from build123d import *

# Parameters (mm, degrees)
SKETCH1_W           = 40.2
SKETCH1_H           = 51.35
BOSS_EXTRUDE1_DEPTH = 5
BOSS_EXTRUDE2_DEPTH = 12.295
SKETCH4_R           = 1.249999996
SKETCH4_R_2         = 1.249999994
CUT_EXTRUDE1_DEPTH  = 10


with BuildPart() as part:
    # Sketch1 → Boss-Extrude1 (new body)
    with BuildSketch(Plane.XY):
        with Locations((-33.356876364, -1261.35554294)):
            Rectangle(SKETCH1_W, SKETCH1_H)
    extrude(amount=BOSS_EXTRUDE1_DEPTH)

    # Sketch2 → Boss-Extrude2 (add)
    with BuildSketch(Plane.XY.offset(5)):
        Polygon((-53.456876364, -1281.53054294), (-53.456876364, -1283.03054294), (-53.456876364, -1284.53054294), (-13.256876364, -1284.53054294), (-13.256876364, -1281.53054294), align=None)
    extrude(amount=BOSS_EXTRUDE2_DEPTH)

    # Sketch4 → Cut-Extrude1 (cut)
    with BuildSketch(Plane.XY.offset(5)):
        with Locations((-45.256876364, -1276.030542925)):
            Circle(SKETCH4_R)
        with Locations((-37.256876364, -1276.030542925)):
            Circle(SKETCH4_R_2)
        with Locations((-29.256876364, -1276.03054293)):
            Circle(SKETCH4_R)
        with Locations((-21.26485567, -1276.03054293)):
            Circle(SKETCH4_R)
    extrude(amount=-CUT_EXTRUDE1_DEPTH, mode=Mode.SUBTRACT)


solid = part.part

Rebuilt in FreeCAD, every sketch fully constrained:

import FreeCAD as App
import Part
import Sketcher
from FreeCAD import Vector
Q = App.Units.Quantity


def add_polygon(sketch, points):
    """Adds a closed chain of lines whose ends are joined by coincident constraints."""
    first, n = sketch.GeometryCount, len(points)
    for a, b in zip(points, points[1:] + points[:1]):
        sketch.addGeometry(Part.LineSegment(App.Vector(*a, 0), App.Vector(*b, 0)), False)
    for i in range(n):
        sketch.addConstraint(Sketcher.Constraint("Coincident", first + i, 2, first + (i + 1) % n, 1))

doc = App.newDocument("Part")
body = doc.addObject("PartDesign::Body", "Body")

sketch1 = doc.addObject("Sketcher::SketchObject", "Sketch")
body.addObject(sketch1)
sketch1.AttachmentSupport = (doc.XY_Plane, [""])
sketch1.MapMode = "FlatFace"
add_polygon(sketch1, [(-53, -1236), (-53, -1287), (-13, -1287), (-13, -1236)])
sketch1.addConstraint([
    Sketcher.Constraint("Vertical", 0),
    Sketcher.Constraint("Horizontal", 1),
    Sketcher.Constraint("Vertical", 2),
    Sketcher.Constraint("Horizontal", 3),
    Sketcher.Constraint("DistanceX", 1, 1, 1, 2, Q("40.2 mm")),
    Sketcher.Constraint("DistanceY", 0, 2, 0, 1, Q("51.35 mm")),
    Sketcher.Constraint("DistanceX", 0, 2, -1, 1, Q("53.456876 mm")),
    Sketcher.Constraint("DistanceY", 0, 2, -1, 1, Q("1287.030543 mm")),
])
pad1 = doc.addObject("PartDesign::Pad", "Pad")
body.addObject(pad1)
pad1.Profile = sketch1
pad1.Length = 5

sketch2 = doc.addObject("Sketcher::SketchObject", "Sketch001")
body.addObject(sketch2)
sketch2.AttachmentSupport = (doc.XY_Plane, [""])
sketch2.MapMode = "FlatFace"
sketch2.AttachmentOffset = App.Placement(Vector(0, 0, 5), App.Rotation())
add_polygon(sketch2, [(-53.5, -1281.5), (-53.5, -1284.5), (-13.3, -1284.5), (-13.3, -1281.5)])
sketch2.addConstraint([
    Sketcher.Constraint("Vertical", 0),
    Sketcher.Constraint("Horizontal", 1),
    Sketcher.Constraint("Vertical", 2),
    Sketcher.Constraint("Horizontal", 3),
    Sketcher.Constraint("DistanceY", 0, 2, 0, 1, Q("3 mm")),
    Sketcher.Constraint("DistanceX", 1, 1, 1, 2, Q("40.2 mm")),
    Sketcher.Constraint("DistanceX", 0, 2, -1, 1, Q("53.456876 mm")),
    Sketcher.Constraint("DistanceY", 0, 2, -1, 1, Q("1284.530543 mm")),
])
pad2 = doc.addObject("PartDesign::Pad", "Pad001")
body.addObject(pad2)
pad2.Profile = sketch2
pad2.Length = 12.295

sketch3 = doc.addObject("Sketcher::SketchObject", "Sketch002")
body.addObject(sketch3)
sketch3.AttachmentSupport = (doc.XY_Plane, [""])
sketch3.MapMode = "FlatFace"
sketch3.AttachmentOffset = App.Placement(Vector(0, 0, 5), App.Rotation())
sketch3.addGeometry([
    Part.Circle(Vector(-45.3, -1276, 0), Vector(0, 0, 1), 1.2),
    Part.Circle(Vector(-37.3, -1276, 0), Vector(0, 0, 1), 1.2),
    Part.Circle(Vector(-29.3, -1276, 0), Vector(0, 0, 1), 1.2),
    Part.Circle(Vector(-21.3, -1276, 0), Vector(0, 0, 1), 1.2),
], False)
sketch3.addConstraint([
    Sketcher.Constraint("Equal", 0, 1),
    Sketcher.Constraint("Equal", 1, 2),
    Sketcher.Constraint("Equal", 2, 3),
    Sketcher.Constraint("Horizontal", 0, 3, 1, 3),
    Sketcher.Constraint("Horizontal", 1, 3, 2, 3),
    Sketcher.Constraint("Horizontal", 2, 3, 3, 3),
    Sketcher.Constraint("Diameter", 0, Q("2.5 mm")),
    Sketcher.Constraint("DistanceX", 0, 3, 1, 3, Q("8 mm")),
    Sketcher.Constraint("DistanceX", 1, 3, 2, 3, Q("8 mm")),
    Sketcher.Constraint("DistanceX", 2, 3, 3, 3, Q("7.992021 mm")),
    Sketcher.Constraint("DistanceX", 0, 3, -1, 1, Q("45.256876 mm")),
    Sketcher.Constraint("DistanceY", 0, 3, -1, 1, Q("1276.030543 mm")),
])
pocket1 = doc.addObject("PartDesign::Pocket", "Pocket")
body.addObject(pocket1)
pocket1.Profile = sketch3
pocket1.Length = 10

doc.recompute()
